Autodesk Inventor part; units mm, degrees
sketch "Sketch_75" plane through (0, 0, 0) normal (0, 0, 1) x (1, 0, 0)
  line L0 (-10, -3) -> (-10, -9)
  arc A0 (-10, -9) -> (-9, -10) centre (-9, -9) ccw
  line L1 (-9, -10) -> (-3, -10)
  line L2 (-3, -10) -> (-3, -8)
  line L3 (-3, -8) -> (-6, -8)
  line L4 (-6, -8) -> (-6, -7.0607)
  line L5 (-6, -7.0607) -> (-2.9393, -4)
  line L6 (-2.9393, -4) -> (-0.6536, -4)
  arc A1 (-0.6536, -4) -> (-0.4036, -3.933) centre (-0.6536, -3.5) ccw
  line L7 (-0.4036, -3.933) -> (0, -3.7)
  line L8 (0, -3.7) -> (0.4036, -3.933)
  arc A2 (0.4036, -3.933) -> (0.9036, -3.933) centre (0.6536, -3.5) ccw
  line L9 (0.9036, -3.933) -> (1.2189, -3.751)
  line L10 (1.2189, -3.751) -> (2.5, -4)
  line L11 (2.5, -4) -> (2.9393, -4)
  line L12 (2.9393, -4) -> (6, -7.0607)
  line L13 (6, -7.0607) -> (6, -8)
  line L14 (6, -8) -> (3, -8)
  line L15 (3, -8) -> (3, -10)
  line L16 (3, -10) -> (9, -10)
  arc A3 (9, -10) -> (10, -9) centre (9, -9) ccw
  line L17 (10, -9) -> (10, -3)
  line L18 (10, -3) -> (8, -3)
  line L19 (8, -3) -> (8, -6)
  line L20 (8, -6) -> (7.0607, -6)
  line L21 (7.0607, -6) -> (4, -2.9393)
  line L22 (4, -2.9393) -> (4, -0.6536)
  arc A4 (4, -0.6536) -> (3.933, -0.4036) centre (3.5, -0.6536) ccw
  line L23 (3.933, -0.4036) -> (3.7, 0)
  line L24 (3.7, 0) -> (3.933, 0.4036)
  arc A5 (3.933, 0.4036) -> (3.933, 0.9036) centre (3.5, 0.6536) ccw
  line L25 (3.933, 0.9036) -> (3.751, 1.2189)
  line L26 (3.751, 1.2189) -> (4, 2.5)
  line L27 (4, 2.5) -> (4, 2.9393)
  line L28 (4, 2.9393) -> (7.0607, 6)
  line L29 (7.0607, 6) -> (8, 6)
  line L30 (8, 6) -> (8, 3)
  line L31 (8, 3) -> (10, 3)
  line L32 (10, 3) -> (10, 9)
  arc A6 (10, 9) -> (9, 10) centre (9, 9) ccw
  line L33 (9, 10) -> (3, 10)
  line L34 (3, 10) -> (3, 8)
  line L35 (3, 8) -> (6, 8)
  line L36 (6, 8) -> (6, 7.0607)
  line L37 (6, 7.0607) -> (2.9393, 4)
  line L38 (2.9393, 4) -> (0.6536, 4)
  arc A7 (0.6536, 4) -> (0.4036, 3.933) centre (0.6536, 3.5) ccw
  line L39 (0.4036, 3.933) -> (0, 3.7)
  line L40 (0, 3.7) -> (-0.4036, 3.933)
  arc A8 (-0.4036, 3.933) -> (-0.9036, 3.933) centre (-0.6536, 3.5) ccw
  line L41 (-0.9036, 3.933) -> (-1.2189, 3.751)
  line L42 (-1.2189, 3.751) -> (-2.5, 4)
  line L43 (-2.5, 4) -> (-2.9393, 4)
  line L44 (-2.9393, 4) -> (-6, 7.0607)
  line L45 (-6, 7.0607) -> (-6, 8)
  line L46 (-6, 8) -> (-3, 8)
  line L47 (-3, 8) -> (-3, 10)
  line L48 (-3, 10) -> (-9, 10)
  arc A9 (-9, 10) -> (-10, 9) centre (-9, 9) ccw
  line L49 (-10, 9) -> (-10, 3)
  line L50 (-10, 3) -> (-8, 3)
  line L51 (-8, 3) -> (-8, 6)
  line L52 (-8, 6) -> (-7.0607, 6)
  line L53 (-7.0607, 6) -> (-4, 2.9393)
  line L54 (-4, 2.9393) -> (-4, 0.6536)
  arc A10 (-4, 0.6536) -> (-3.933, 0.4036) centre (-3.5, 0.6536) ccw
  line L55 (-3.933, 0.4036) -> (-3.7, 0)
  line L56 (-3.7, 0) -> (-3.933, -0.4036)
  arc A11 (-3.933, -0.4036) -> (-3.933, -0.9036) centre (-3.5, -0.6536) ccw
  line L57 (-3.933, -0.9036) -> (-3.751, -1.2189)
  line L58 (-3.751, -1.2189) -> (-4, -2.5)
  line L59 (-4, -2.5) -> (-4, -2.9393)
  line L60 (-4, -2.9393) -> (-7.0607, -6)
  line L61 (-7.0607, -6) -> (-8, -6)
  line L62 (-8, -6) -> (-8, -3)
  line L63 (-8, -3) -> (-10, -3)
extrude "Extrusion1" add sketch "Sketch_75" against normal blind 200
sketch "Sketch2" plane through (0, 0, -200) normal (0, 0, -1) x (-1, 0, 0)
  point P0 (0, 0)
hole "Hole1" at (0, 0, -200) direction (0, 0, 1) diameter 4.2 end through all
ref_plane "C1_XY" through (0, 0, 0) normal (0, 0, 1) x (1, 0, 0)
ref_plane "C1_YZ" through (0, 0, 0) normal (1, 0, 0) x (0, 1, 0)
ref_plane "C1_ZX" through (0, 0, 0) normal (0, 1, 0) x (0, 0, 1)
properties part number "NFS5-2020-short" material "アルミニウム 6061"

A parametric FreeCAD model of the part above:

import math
import FreeCAD as App
import Part
import Sketcher
from FreeCAD import Vector
Q = App.Units.Quantity

doc = App.newDocument("Part")
body = doc.addObject("PartDesign::Body", "Body")

# Sketch on XY plane
sketch1 = body.newObject("Sketcher::SketchObject", "Sketch")
sketch1.AttachmentSupport = (doc.getObject("XY_Plane"), [""])
sketch1.MapMode = "FlatFace"
sketch1.addGeometry(Part.LineSegment(Vector(-8, -3, 0), Vector(-10, -3, 0)), False)
sketch1.addGeometry(Part.LineSegment(Vector(-10, -3, 0), Vector(-10, -9, 0)), False)
sketch1.addGeometry(Part.ArcOfCircle(Part.Circle(Vector(-9, -9, 0), Vector(0, 0, 1), 1), math.radians(180), math.radians(270)), False)
sketch1.addGeometry(Part.LineSegment(Vector(-9, -10, 0), Vector(-3, -10, 0)), False)
sketch1.addGeometry(Part.LineSegment(Vector(-3, -10, 0), Vector(-3, -8, 0)), False)
sketch1.addGeometry(Part.LineSegment(Vector(-3, -8, 0), Vector(-6, -8, 0)), False)
sketch1.addGeometry(Part.LineSegment(Vector(-6, -8, 0), Vector(-6, -7.06, 0)), False)
sketch1.addGeometry(Part.LineSegment(Vector(-6, -7.06, 0), Vector(-2.94, -4, 0)), False)
sketch1.addGeometry(Part.LineSegment(Vector(-2.94, -4, 0), Vector(-0.65, -4, 0)), False)
sketch1.addGeometry(Part.ArcOfCircle(Part.Circle(Vector(-0.65, -3.5, 0), Vector(0, 0, 1), 0.5), math.radians(-90), math.radians(-60)), False)
sketch1.addGeometry(Part.LineSegment(Vector(-0.4, -3.93, 0), Vector(0, -3.7, 0)), False)
sketch1.addGeometry(Part.LineSegment(Vector(0, -3.7, 0), Vector(0.4, -3.93, 0)), False)
sketch1.addGeometry(Part.ArcOfCircle(Part.Circle(Vector(0.65, -3.5, 0), Vector(0, 0, 1), 0.5), math.radians(-120), math.radians(-60)), False)
sketch1.addGeometry(Part.LineSegment(Vector(0.9, -3.93, 0), Vector(1.22, -3.75, 0)), False)
sketch1.addGeometry(Part.LineSegment(Vector(1.22, -3.75, 0), Vector(2.5, -4, 0)), False)
sketch1.addGeometry(Part.LineSegment(Vector(2.5, -4, 0), Vector(2.94, -4, 0)), False)
sketch1.addGeometry(Part.LineSegment(Vector(2.94, -4, 0), Vector(6, -7.06, 0)), False)
sketch1.addGeometry(Part.LineSegment(Vector(6, -7.06, 0), Vector(6, -8, 0)), False)
sketch1.addGeometry(Part.LineSegment(Vector(6, -8, 0), Vector(3, -8, 0)), False)
sketch1.addGeometry(Part.LineSegment(Vector(3, -8, 0), Vector(3, -10, 0)), False)
sketch1.addGeometry(Part.LineSegment(Vector(3, -10, 0), Vector(9, -10, 0)), False)
sketch1.addGeometry(Part.ArcOfCircle(Part.Circle(Vector(9, -9, 0), Vector(0, 0, 1), 1), math.radians(-90), math.radians(0)), False)
sketch1.addGeometry(Part.LineSegment(Vector(10, -9, 0), Vector(10, -3, 0)), False)
sketch1.addGeometry(Part.LineSegment(Vector(10, -3, 0), Vector(8, -3, 0)), False)
sketch1.addGeometry(Part.LineSegment(Vector(8, -3, 0), Vector(8, -6, 0)), False)
sketch1.addGeometry(Part.LineSegment(Vector(8, -6, 0), Vector(7.06, -6, 0)), False)
sketch1.addGeometry(Part.LineSegment(Vector(7.06, -6, 0), Vector(4, -2.94, 0)), False)
sketch1.addGeometry(Part.LineSegment(Vector(4, -2.94, 0), Vector(4, -0.65, 0)), False)
sketch1.addGeometry(Part.ArcOfCircle(Part.Circle(Vector(3.5, -0.65, 0), Vector(0, 0, 1), 0.5), math.radians(0), math.radians(30)), False)
sketch1.addGeometry(Part.LineSegment(Vector(3.93, -0.4, 0), Vector(3.7, 0, 0)), False)
sketch1.addGeometry(Part.LineSegment(Vector(3.7, 0, 0), Vector(3.93, 0.4, 0)), False)
sketch1.addGeometry(Part.ArcOfCircle(Part.Circle(Vector(3.5, 0.65, 0), Vector(0, 0, 1), 0.5), math.radians(-30), math.radians(30)), False)
sketch1.addGeometry(Part.LineSegment(Vector(3.93, 0.9, 0), Vector(3.75, 1.22, 0)), False)
sketch1.addGeometry(Part.LineSegment(Vector(3.75, 1.22, 0), Vector(4, 2.5, 0)), False)
sketch1.addGeometry(Part.LineSegment(Vector(4, 2.5, 0), Vector(4, 2.94, 0)), False)
sketch1.addGeometry(Part.LineSegment(Vector(4, 2.94, 0), Vector(7.06, 6, 0)), False)
sketch1.addGeometry(Part.LineSegment(Vector(7.06, 6, 0), Vector(8, 6, 0)), False)
sketch1.addGeometry(Part.LineSegment(Vector(8, 6, 0), Vector(8, 3, 0)), False)
sketch1.addGeometry(Part.LineSegment(Vector(8, 3, 0), Vector(10, 3, 0)), False)
sketch1.addGeometry(Part.LineSegment(Vector(10, 3, 0), Vector(10, 9, 0)), False)
sketch1.addGeometry(Part.ArcOfCircle(Part.Circle(Vector(9, 9, 0), Vector(0, 0, 1), 1), math.radians(0), math.radians(90)), False)
sketch1.addGeometry(Part.LineSegment(Vector(9, 10, 0), Vector(3, 10, 0)), False)
sketch1.addGeometry(Part.LineSegment(Vector(3, 10, 0), Vector(3, 8, 0)), False)
sketch1.addGeometry(Part.LineSegment(Vector(3, 8, 0), Vector(6, 8, 0)), False)
sketch1.addGeometry(Part.LineSegment(Vector(6, 8, 0), Vector(6, 7.06, 0)), False)
sketch1.addGeometry(Part.LineSegment(Vector(6, 7.06, 0), Vector(2.94, 4, 0)), False)
sketch1.addGeometry(Part.LineSegment(Vector(2.94, 4, 0), Vector(0.65, 4, 0)), False)
sketch1.addGeometry(Part.ArcOfCircle(Part.Circle(Vector(0.65, 3.5, 0), Vector(0, 0, 1), 0.5), math.radians(90), math.radians(120)), False)
sketch1.addGeometry(Part.LineSegment(Vector(0.4, 3.93, 0), Vector(0, 3.7, 0)), False)
sketch1.addGeometry(Part.LineSegment(Vector(0, 3.7, 0), Vector(-0.4, 3.93, 0)), False)
sketch1.addGeometry(Part.ArcOfCircle(Part.Circle(Vector(-0.65, 3.5, 0), Vector(0, 0, 1), 0.5), math.radians(60), math.radians(120)), False)
sketch1.addGeometry(Part.LineSegment(Vector(-0.9, 3.93, 0), Vector(-1.22, 3.75, 0)), False)
sketch1.addGeometry(Part.LineSegment(Vector(-1.22, 3.75, 0), Vector(-2.5, 4, 0)), False)
sketch1.addGeometry(Part.LineSegment(Vector(-2.5, 4, 0), Vector(-2.94, 4, 0)), False)
sketch1.addGeometry(Part.LineSegment(Vector(-2.94, 4, 0), Vector(-6, 7.06, 0)), False)
sketch1.addGeometry(Part.LineSegment(Vector(-6, 7.06, 0), Vector(-6, 8, 0)), False)
sketch1.addGeometry(Part.LineSegment(Vector(-6, 8, 0), Vector(-3, 8, 0)), False)
sketch1.addGeometry(Part.LineSegment(Vector(-3, 8, 0), Vector(-3, 10, 0)), False)
sketch1.addGeometry(Part.LineSegment(Vector(-3, 10, 0), Vector(-9, 10, 0)), False)
sketch1.addGeometry(Part.ArcOfCircle(Part.Circle(Vector(-9, 9, 0), Vector(0, 0, 1), 1), math.radians(90), math.radians(180)), False)
sketch1.addGeometry(Part.LineSegment(Vector(-10, 9, 0), Vector(-10, 3, 0)), False)
sketch1.addGeometry(Part.LineSegment(Vector(-10, 3, 0), Vector(-8, 3, 0)), False)
sketch1.addGeometry(Part.LineSegment(Vector(-8, 3, 0), Vector(-8, 6, 0)), False)
sketch1.addGeometry(Part.LineSegment(Vector(-8, 6, 0), Vector(-7.06, 6, 0)), False)
sketch1.addGeometry(Part.LineSegment(Vector(-7.06, 6, 0), Vector(-4, 2.94, 0)), False)
sketch1.addGeometry(Part.LineSegment(Vector(-4, 2.94, 0), Vector(-4, 0.65, 0)), False)
sketch1.addGeometry(Part.ArcOfCircle(Part.Circle(Vector(-3.5, 0.65, 0), Vector(0, 0, 1), 0.5), math.radians(180), math.radians(210)), False)
sketch1.addGeometry(Part.LineSegment(Vector(-3.93, 0.4, 0), Vector(-3.7, 0, 0)), False)
sketch1.addGeometry(Part.LineSegment(Vector(-3.7, 0, 0), Vector(-3.93, -0.4, 0)), False)
sketch1.addGeometry(Part.ArcOfCircle(Part.Circle(Vector(-3.5, -0.65, 0), Vector(0, 0, 1), 0.5), math.radians(150), math.radians(210)), False)
sketch1.addGeometry(Part.LineSegment(Vector(-3.93, -0.9, 0), Vector(-3.75, -1.22, 0)), False)
sketch1.addGeometry(Part.LineSegment(Vector(-3.75, -1.22, 0), Vector(-4, -2.5, 0)), False)
sketch1.addGeometry(Part.LineSegment(Vector(-4, -2.5, 0), Vector(-4, -2.94, 0)), False)
sketch1.addGeometry(Part.LineSegment(Vector(-4, -2.94, 0), Vector(-7.06, -6, 0)), False)
sketch1.addGeometry(Part.LineSegment(Vector(-7.06, -6, 0), Vector(-8, -6, 0)), False)
sketch1.addGeometry(Part.LineSegment(Vector(-8, -6, 0), Vector(-8, -3, 0)), False)
sketch1.addConstraint(Sketcher.Constraint("Coincident", 0, 2, 1, 1))
sketch1.addConstraint(Sketcher.Constraint("Tangent", 1, 2, 2, 1))
sketch1.addConstraint(Sketcher.Constraint("Tangent", 2, 2, 3, 1))
sketch1.addConstraint(Sketcher.Constraint("Coincident", 3, 2, 4, 1))
sketch1.addConstraint(Sketcher.Constraint("Coincident", 4, 2, 5, 1))
sketch1.addConstraint(Sketcher.Constraint("Coincident", 5, 2, 6, 1))
sketch1.addConstraint(Sketcher.Constraint("Coincident", 6, 2, 7, 1))
sketch1.addConstraint(Sketcher.Constraint("Coincident", 7, 2, 8, 1))
sketch1.addConstraint(Sketcher.Constraint("Tangent", 8, 2, 9, 1))
sketch1.addConstraint(Sketcher.Constraint("Tangent", 9, 2, 10, 1))
sketch1.addConstraint(Sketcher.Constraint("Coincident", 10, 2, 11, 1))
sketch1.addConstraint(Sketcher.Constraint("Tangent", 11, 2, 12, 1))
sketch1.addConstraint(Sketcher.Constraint("Tangent", 12, 2, 13, 1))
sketch1.addConstraint(Sketcher.Constraint("Coincident", 13, 2, 14, 1))
sketch1.addConstraint(Sketcher.Constraint("Coincident", 14, 2, 15, 1))
sketch1.addConstraint(Sketcher.Constraint("Coincident", 15, 2, 16, 1))
sketch1.addConstraint(Sketcher.Constraint("Coincident", 16, 2, 17, 1))
sketch1.addConstraint(Sketcher.Constraint("Coincident", 17, 2, 18, 1))
sketch1.addConstraint(Sketcher.Constraint("Coincident", 18, 2, 19, 1))
sketch1.addConstraint(Sketcher.Constraint("Coincident", 19, 2, 20, 1))
sketch1.addConstraint(Sketcher.Constraint("Tangent", 20, 2, 21, 1))
sketch1.addConstraint(Sketcher.Constraint("Tangent", 21, 2, 22, 1))
sketch1.addConstraint(Sketcher.Constraint("Coincident", 22, 2, 23, 1))
sketch1.addConstraint(Sketcher.Constraint("Coincident", 23, 2, 24, 1))
sketch1.addConstraint(Sketcher.Constraint("Coincident", 24, 2, 25, 1))
sketch1.addConstraint(Sketcher.Constraint("Coincident", 25, 2, 26, 1))
sketch1.addConstraint(Sketcher.Constraint("Coincident", 26, 2, 27, 1))
sketch1.addConstraint(Sketcher.Constraint("Tangent", 27, 2, 28, 1))
sketch1.addConstraint(Sketcher.Constraint("Tangent", 28, 2, 29, 1))
sketch1.addConstraint(Sketcher.Constraint("Coincident", 29, 2, 30, 1))
sketch1.addConstraint(Sketcher.Constraint("Tangent", 30, 2, 31, 1))
sketch1.addConstraint(Sketcher.Constraint("Tangent", 31, 2, 32, 1))
sketch1.addConstraint(Sketcher.Constraint("Coincident", 32, 2, 33, 1))
sketch1.addConstraint(Sketcher.Constraint("Coincident", 33, 2, 34, 1))
sketch1.addConstraint(Sketcher.Constraint("Coincident", 34, 2, 35, 1))
sketch1.addConstraint(Sketcher.Constraint("Coincident", 35, 2, 36, 1))
sketch1.addConstraint(Sketcher.Constraint("Coincident", 36, 2, 37, 1))
sketch1.addConstraint(Sketcher.Constraint("Coincident", 37, 2, 38, 1))
sketch1.addConstraint(Sketcher.Constraint("Coincident", 38, 2, 39, 1))
sketch1.addConstraint(Sketcher.Constraint("Tangent", 39, 2, 40, 1))
sketch1.addConstraint(Sketcher.Constraint("Tangent", 40, 2, 41, 1))
sketch1.addConstraint(Sketcher.Constraint("Coincident", 41, 2, 42, 1))
sketch1.addConstraint(Sketcher.Constraint("Coincident", 42, 2, 43, 1))
sketch1.addConstraint(Sketcher.Constraint("Coincident", 43, 2, 44, 1))
sketch1.addConstraint(Sketcher.Constraint("Coincident", 44, 2, 45, 1))
sketch1.addConstraint(Sketcher.Constraint("Coincident", 45, 2, 46, 1))
sketch1.addConstraint(Sketcher.Constraint("Tangent", 46, 2, 47, 1))
sketch1.addConstraint(Sketcher.Constraint("Tangent", 47, 2, 48, 1))
sketch1.addConstraint(Sketcher.Constraint("Coincident", 48, 2, 49, 1))
sketch1.addConstraint(Sketcher.Constraint("Tangent", 49, 2, 50, 1))
sketch1.addConstraint(Sketcher.Constraint("Tangent", 50, 2, 51, 1))
sketch1.addConstraint(Sketcher.Constraint("Coincident", 51, 2, 52, 1))
sketch1.addConstraint(Sketcher.Constraint("Coincident", 52, 2, 53, 1))
sketch1.addConstraint(Sketcher.Constraint("Coincident", 53, 2, 54, 1))
sketch1.addConstraint(Sketcher.Constraint("Coincident", 54, 2, 55, 1))
sketch1.addConstraint(Sketcher.Constraint("Coincident", 55, 2, 56, 1))
sketch1.addConstraint(Sketcher.Constraint("Coincident", 56, 2, 57, 1))
sketch1.addConstraint(Sketcher.Constraint("Coincident", 57, 2, 58, 1))
sketch1.addConstraint(Sketcher.Constraint("Tangent", 58, 2, 59, 1))
sketch1.addConstraint(Sketcher.Constraint("Tangent", 59, 2, 60, 1))
sketch1.addConstraint(Sketcher.Constraint("Coincident", 60, 2, 61, 1))
sketch1.addConstraint(Sketcher.Constraint("Coincident", 61, 2, 62, 1))
sketch1.addConstraint(Sketcher.Constraint("Coincident", 62, 2, 63, 1))
sketch1.addConstraint(Sketcher.Constraint("Coincident", 63, 2, 64, 1))
sketch1.addConstraint(Sketcher.Constraint("Coincident", 64, 2, 65, 1))
sketch1.addConstraint(Sketcher.Constraint("Tangent", 65, 2, 66, 1))
sketch1.addConstraint(Sketcher.Constraint("Tangent", 66, 2, 67, 1))
sketch1.addConstraint(Sketcher.Constraint("Coincident", 67, 2, 68, 1))
sketch1.addConstraint(Sketcher.Constraint("Tangent", 68, 2, 69, 1))
sketch1.addConstraint(Sketcher.Constraint("Tangent", 69, 2, 70, 1))
sketch1.addConstraint(Sketcher.Constraint("Coincident", 70, 2, 71, 1))
sketch1.addConstraint(Sketcher.Constraint("Coincident", 71, 2, 72, 1))
sketch1.addConstraint(Sketcher.Constraint("Coincident", 72, 2, 73, 1))
sketch1.addConstraint(Sketcher.Constraint("Coincident", 73, 2, 74, 1))
sketch1.addConstraint(Sketcher.Constraint("Coincident", 74, 2, 75, 1))
sketch1.addConstraint(Sketcher.Constraint("Coincident", 75, 2, 0, 1))
sketch1.addConstraint(Sketcher.Constraint("Horizontal", 0))
sketch1.addConstraint(Sketcher.Constraint("Vertical", 1))
sketch1.addConstraint(Sketcher.Constraint("Horizontal", 3))
sketch1.addConstraint(Sketcher.Constraint("Vertical", 4))
sketch1.addConstraint(Sketcher.Constraint("Horizontal", 5))
sketch1.addConstraint(Sketcher.Constraint("Vertical", 6))
sketch1.addConstraint(Sketcher.Constraint("Horizontal", 8))
sketch1.addConstraint(Sketcher.Constraint("Horizontal", 15))
sketch1.addConstraint(Sketcher.Constraint("Vertical", 17))
sketch1.addConstraint(Sketcher.Constraint("Horizontal", 18))
sketch1.addConstraint(Sketcher.Constraint("Vertical", 19))
sketch1.addConstraint(Sketcher.Constraint("Horizontal", 20))
sketch1.addConstraint(Sketcher.Constraint("Vertical", 22))
sketch1.addConstraint(Sketcher.Constraint("Horizontal", 23))
sketch1.addConstraint(Sketcher.Constraint("Vertical", 24))
sketch1.addConstraint(Sketcher.Constraint("Horizontal", 25))
sketch1.addConstraint(Sketcher.Constraint("Vertical", 27))
sketch1.addConstraint(Sketcher.Constraint("Vertical", 34))
sketch1.addConstraint(Sketcher.Constraint("Horizontal", 36))
sketch1.addConstraint(Sketcher.Constraint("Vertical", 37))
sketch1.addConstraint(Sketcher.Constraint("Horizontal", 38))
sketch1.addConstraint(Sketcher.Constraint("Vertical", 39))
sketch1.addConstraint(Sketcher.Constraint("Horizontal", 41))
sketch1.addConstraint(Sketcher.Constraint("Vertical", 42))
sketch1.addConstraint(Sketcher.Constraint("Horizontal", 43))
sketch1.addConstraint(Sketcher.Constraint("Vertical", 44))
sketch1.addConstraint(Sketcher.Constraint("Horizontal", 46))
sketch1.addConstraint(Sketcher.Constraint("Horizontal", 53))
sketch1.addConstraint(Sketcher.Constraint("Vertical", 55))
sketch1.addConstraint(Sketcher.Constraint("Horizontal", 56))
sketch1.addConstraint(Sketcher.Constraint("Vertical", 57))
sketch1.addConstraint(Sketcher.Constraint("Horizontal", 58))
sketch1.addConstraint(Sketcher.Constraint("Vertical", 60))
sketch1.addConstraint(Sketcher.Constraint("Horizontal", 61))
sketch1.addConstraint(Sketcher.Constraint("Vertical", 62))
sketch1.addConstraint(Sketcher.Constraint("Horizontal", 63))
sketch1.addConstraint(Sketcher.Constraint("Vertical", 65))
sketch1.addConstraint(Sketcher.Constraint("Vertical", 72))
sketch1.addConstraint(Sketcher.Constraint("Horizontal", 74))
sketch1.addConstraint(Sketcher.Constraint("Vertical", 75))
sketch1.addConstraint(Sketcher.Constraint("Equal", 9, 12))
sketch1.addConstraint(Sketcher.Constraint("Equal", 2, 21))
sketch1.addConstraint(Sketcher.Constraint("Equal", 12, 28))
sketch1.addConstraint(Sketcher.Constraint("Equal", 28, 31))
sketch1.addConstraint(Sketcher.Constraint("Equal", 21, 40))
sketch1.addConstraint(Sketcher.Constraint("Equal", 31, 47))
sketch1.addConstraint(Sketcher.Constraint("Equal", 47, 50))
sketch1.addConstraint(Sketcher.Constraint("Equal", 40, 59))
sketch1.addConstraint(Sketcher.Constraint("Equal", 50, 66))
sketch1.addConstraint(Sketcher.Constraint("Equal", 66, 69))
sketch1.addConstraint(Sketcher.Constraint("Symmetric", 2, 3, 40, 3, -1, 1))
sketch1.addConstraint(Sketcher.Constraint("Symmetric", 9, 3, 47, 3, -1, 1))
sketch1.addConstraint(Sketcher.Constraint("Symmetric", 12, 3, 50, 3, -1, 1))
sketch1.addConstraint(Sketcher.Constraint("Symmetric", 21, 3, 59, 3, -1, 1))
sketch1.addConstraint(Sketcher.Constraint("Symmetric", 28, 3, 66, 3, -1, 1))
sketch1.addConstraint(Sketcher.Constraint("Symmetric", 31, 3, 69, 3, -1, 1))
sketch1.addConstraint(Sketcher.Constraint("Symmetric", 4, 2, 42, 2, -1, 1))
sketch1.addConstraint(Sketcher.Constraint("Symmetric", 6, 2, 44, 2, -1, 1))
sketch1.addConstraint(Sketcher.Constraint("Symmetric", 10, 2, 48, 2, -1, 1))
sketch1.addConstraint(Sketcher.Constraint("Symmetric", 13, 2, 51, 2, -1, 1))
sketch1.addConstraint(Sketcher.Constraint("Symmetric", 14, 2, 52, 2, -1, 1))
sketch1.addConstraint(Sketcher.Constraint("Symmetric", 16, 2, 54, 2, -1, 1))
sketch1.addConstraint(Sketcher.Constraint("Symmetric", 18, 2, 56, 2, -1, 1))
sketch1.addConstraint(Sketcher.Constraint("Symmetric", 23, 2, 61, 2, -1, 1))
sketch1.addConstraint(Sketcher.Constraint("Symmetric", 25, 2, 63, 2, -1, 1))
sketch1.addConstraint(Sketcher.Constraint("Symmetric", 29, 2, 67, 2, -1, 1))
sketch1.addConstraint(Sketcher.Constraint("Symmetric", 32, 2, 70, 2, -1, 1))
sketch1.addConstraint(Sketcher.Constraint("Symmetric", 33, 2, 71, 2, -1, 1))
sketch1.addConstraint(Sketcher.Constraint("Symmetric", 35, 2, 73, 2, -1, 1))
sketch1.addConstraint(Sketcher.Constraint("Symmetric", 37, 2, 75, 2, -1, 1))
sketch1.addConstraint(Sketcher.Constraint("Symmetric", 9, 3, 12, 3, -2))
sketch1.addConstraint(Sketcher.Constraint("Symmetric", 2, 3, 21, 3, -2))
sketch1.addConstraint(Sketcher.Constraint("Symmetric", 31, 3, 66, 3, -2))
sketch1.addConstraint(Sketcher.Constraint("Symmetric", 7, 2, 15, 2, -2))
sketch1.addConstraint(Sketcher.Constraint("Symmetric", 6, 2, 16, 2, -2))
sketch1.addConstraint(Sketcher.Constraint("Symmetric", 4, 2, 18, 2, -2))
sketch1.addConstraint(Sketcher.Constraint("Symmetric", 37, 2, 61, 2, -2))
sketch1.addConstraint(Sketcher.Constraint("Symmetric", 35, 2, 63, 2, -2))
sketch1.addConstraint(Sketcher.Constraint("Symmetric", 34, 2, 64, 2, -2))
sketch1.addConstraint(Sketcher.Constraint("PointOnObject", 10, 2, -2))
sketch1.addConstraint(Sketcher.Constraint("PointOnObject", 29, 2, -1))
sketch1.addConstraint(Sketcher.Constraint("Parallel", 10, 13))
sketch1.addConstraint(Sketcher.Constraint("Perpendicular", 7, 16))
sketch1.addConstraint(Sketcher.Constraint("Parallel", 16, 26))
sketch1.addConstraint(Sketcher.Constraint("Perpendicular", 13, 29))
sketch1.addConstraint(Sketcher.Constraint("Parallel", 29, 32))
sketch1.addConstraint(Sketcher.Constraint("Perpendicular", 14, 33))
sketch1.addConstraint(Sketcher.Constraint("Perpendicular", 26, 35))
sketch1.addConstraint(Sketcher.Constraint("Parallel", 35, 45))
sketch1.addConstraint(Sketcher.Constraint("Perpendicular", 45, 54))
sketch1.addConstraint(Sketcher.Constraint("Perpendicular", 64, 73))
sketch1.addConstraint(Sketcher.Constraint("Equal", 58, 1))
sketch1.addConstraint(Sketcher.Constraint("Equal", 61, 4))
sketch1.addConstraint(Sketcher.Constraint("Equal", 74, 6))
sketch1.addConstraint(Sketcher.Constraint("Equal", 56, 24))
sketch1.addConstraint(Sketcher.Constraint("Equal", 46, 27))
sketch1.addConstraint(Sketcher.Constraint("Equal", 53, 34))
sketch1.addConstraint(Sketcher.Constraint("Equal", 16, 26))
sketch1.addConstraint(Sketcher.Constraint("Equal", 11, 29))
sketch1.addConstraint(Sketcher.Constraint("Radius", 2, 1.0))
sketch1.addConstraint(Sketcher.Constraint("Radius", 9, 0.5))
sketch1.addConstraint(Sketcher.Constraint("DistanceX", 0, 2, 0, 1, 2.0))
sketch1.addConstraint(Sketcher.Constraint("DistanceX", 3, 1, 3, 2, 6.0))
sketch1.addConstraint(Sketcher.Constraint("DistanceX", 5, 2, 5, 1, 3.0))
sketch1.addConstraint(Sketcher.Constraint("Angle", 14, Q("-10.999 deg")))
sketch1.addConstraint(Sketcher.Constraint("DistanceX", 2, 3, -1, 1, 9.0))
sketch1.addConstraint(Sketcher.Constraint("DistanceY", 7, 2, -1, 1, 4.0))
sketch1.addConstraint(Sketcher.Constraint("DistanceY", 10, 2, -1, 1, 3.7))
sketch1.addConstraint(Sketcher.Constraint("DistanceX", -1, 1, 14, 2, 2.5))
sketch1.addConstraint(Sketcher.Constraint("Distance", 10, 0.466))
sketch1.addConstraint(Sketcher.Constraint("DistanceX", 8, 1, 8, 2, 2.2857))
pad1 = body.newObject("PartDesign::Pad", "Pad")
pad1.Profile = sketch1
pad1.Length = 200
pad1.Reversed = True

# Sketch on XY plane
sketch2 = body.newObject("Sketcher::SketchObject", "Sketch001")
sketch2.AttachmentSupport = (doc.getObject("XY_Plane"), [""])
sketch2.MapMode = "FlatFace"
sketch2.AttachmentOffset = App.Placement(Vector(0, 0, -200), App.Rotation())
sketch2.addGeometry(Part.Circle(Vector(0, 0, 0), Vector(0, 0, 1), 2.1), False)
sketch2.addConstraint(Sketcher.Constraint("Coincident", 0, 3, -1, 1))
sketch2.addConstraint(Sketcher.Constraint("Diameter", 0, 4.2))
doc.recompute()
hole = body.newObject("PartDesign::Hole", "Hole")
hole.Profile = sketch2
hole.ThreadType = "None"
hole.Diameter = 4.2
hole.DepthType = "ThroughAll"
hole.Reversed = True

doc.recompute()
